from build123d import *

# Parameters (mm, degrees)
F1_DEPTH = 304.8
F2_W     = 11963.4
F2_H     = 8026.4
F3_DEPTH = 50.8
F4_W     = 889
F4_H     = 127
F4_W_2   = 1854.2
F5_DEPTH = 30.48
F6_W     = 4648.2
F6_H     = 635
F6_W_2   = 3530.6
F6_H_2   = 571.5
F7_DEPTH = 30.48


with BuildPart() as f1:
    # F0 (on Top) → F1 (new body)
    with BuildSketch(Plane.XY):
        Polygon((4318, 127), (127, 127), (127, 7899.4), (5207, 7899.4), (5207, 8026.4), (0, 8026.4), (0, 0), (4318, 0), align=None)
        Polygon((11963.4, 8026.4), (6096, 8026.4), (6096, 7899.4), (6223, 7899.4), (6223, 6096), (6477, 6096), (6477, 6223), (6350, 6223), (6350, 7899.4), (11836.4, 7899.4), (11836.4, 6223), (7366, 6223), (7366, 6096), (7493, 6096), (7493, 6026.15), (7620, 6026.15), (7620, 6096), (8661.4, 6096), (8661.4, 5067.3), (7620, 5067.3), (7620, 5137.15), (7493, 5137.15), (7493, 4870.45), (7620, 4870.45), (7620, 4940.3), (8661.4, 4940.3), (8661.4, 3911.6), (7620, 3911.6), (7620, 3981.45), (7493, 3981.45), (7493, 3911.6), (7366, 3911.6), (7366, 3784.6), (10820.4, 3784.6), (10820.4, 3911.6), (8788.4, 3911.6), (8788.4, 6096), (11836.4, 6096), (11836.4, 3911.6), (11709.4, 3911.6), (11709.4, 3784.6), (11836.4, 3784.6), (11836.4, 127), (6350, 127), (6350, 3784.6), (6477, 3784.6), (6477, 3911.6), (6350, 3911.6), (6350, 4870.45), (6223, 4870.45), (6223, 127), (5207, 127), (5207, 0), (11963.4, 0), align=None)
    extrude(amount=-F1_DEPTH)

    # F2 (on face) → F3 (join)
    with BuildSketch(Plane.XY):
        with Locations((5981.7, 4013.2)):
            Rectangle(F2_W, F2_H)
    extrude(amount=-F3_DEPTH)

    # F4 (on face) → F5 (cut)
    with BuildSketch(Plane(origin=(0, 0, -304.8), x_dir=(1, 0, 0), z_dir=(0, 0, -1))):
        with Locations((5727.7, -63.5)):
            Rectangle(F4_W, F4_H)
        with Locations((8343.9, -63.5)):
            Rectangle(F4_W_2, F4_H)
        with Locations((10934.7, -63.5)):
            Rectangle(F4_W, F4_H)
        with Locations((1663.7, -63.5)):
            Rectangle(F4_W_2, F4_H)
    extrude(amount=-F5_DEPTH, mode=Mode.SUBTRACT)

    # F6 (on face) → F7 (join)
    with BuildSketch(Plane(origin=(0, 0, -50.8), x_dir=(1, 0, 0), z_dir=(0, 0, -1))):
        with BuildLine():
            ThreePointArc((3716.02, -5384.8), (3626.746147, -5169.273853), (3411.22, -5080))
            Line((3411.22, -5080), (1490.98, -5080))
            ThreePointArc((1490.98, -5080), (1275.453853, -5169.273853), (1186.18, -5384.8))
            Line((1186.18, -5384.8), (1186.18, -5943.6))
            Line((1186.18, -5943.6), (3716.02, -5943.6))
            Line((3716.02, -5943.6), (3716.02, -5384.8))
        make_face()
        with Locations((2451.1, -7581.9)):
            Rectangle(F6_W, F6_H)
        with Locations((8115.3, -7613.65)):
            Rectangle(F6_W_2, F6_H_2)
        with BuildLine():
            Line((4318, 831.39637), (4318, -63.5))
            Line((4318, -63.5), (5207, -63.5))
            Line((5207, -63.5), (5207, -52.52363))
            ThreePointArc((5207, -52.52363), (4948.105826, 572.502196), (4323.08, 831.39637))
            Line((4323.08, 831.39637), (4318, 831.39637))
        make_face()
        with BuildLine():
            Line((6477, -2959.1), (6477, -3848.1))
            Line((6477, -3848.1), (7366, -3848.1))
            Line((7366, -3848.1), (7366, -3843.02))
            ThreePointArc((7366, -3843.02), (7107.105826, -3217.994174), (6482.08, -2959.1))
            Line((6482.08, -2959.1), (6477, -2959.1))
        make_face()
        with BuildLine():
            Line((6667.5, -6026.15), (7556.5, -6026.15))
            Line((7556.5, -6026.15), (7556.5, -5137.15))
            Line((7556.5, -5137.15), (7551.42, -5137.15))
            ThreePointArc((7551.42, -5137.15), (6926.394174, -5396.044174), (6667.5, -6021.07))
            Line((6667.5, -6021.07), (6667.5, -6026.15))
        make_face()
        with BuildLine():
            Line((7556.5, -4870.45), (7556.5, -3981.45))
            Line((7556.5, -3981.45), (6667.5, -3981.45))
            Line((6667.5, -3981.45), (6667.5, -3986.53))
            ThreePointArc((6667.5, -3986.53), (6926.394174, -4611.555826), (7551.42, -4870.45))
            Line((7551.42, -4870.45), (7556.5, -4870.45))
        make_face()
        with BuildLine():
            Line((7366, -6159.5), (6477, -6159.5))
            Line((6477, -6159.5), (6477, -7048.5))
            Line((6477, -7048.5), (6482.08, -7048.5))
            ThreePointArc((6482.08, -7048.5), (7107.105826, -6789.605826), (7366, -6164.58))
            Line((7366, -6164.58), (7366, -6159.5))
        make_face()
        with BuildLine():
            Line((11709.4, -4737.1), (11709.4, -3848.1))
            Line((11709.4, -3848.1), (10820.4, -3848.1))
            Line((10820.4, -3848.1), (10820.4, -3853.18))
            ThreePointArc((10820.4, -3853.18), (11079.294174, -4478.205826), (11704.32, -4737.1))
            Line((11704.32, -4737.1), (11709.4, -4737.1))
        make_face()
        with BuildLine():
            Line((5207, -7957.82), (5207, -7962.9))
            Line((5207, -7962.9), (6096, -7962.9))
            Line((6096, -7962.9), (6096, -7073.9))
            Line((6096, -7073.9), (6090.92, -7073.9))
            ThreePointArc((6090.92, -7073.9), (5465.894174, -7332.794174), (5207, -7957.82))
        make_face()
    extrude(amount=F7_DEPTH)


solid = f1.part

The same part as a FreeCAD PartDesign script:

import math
import FreeCAD as App
import Part
import Sketcher
from FreeCAD import Vector
Q = App.Units.Quantity

doc = App.newDocument("Part")
params = doc.addObject("Spreadsheet::Sheet", "Params")
for row, (alias, value) in enumerate([
    ("sketch1_width", "165 in"),
    ("sketch1_width2", "200 in"),
    ("sketch1_width3", "205 in"),
    ("sketch1_width4", "231 in"),
    ("sketch1_width5", "5 in"),
    ("pad1_length", "12 in"),
    ("sketch2_width", "471 in"),
    ("sketch2_height", "316 in"),
    ("pad2_length", "2 in"),
    ("sketch3_width", "35 in"),
    ("sketch3_width2", "73 in"),
    ("sketch3_height", "5 in"),
    ("pocket1_length", "1.2 in"),
    ("sketch4_radius", "12 in"),
    ("sketch4_radius2", "34.8 in"),
    ("sketch4_width", "183 in"),
    ("sketch4_width2", "139 in"),
    ("sketch4_width3", "35 in"),
    ("pad3_length", "1.2 in"),
], start=1):
    params.set(f"A{row}", alias)
    params.set(f"B{row}", "=" + value)
    params.setAlias(f"B{row}", alias)

body = doc.addObject("PartDesign::Body", "Body")
body.AllowCompound = True

sketch1 = doc.addObject("Sketcher::SketchObject", "Sketch")
body.addObject(sketch1)
sketch1.AttachmentSupport = (doc.XY_Plane, [""])
sketch1.MapMode = "FlatFace"
sketch1.addGeometry(Part.LineSegment(Vector(4318, 127, 0), Vector(127, 127, 0)), False)
sketch1.addGeometry(Part.LineSegment(Vector(127, 127, 0), Vector(127, 7899, 0)), False)
sketch1.addGeometry(Part.LineSegment(Vector(127, 7899, 0), Vector(5207, 7899, 0)), False)
sketch1.addGeometry(Part.LineSegment(Vector(5207, 7899, 0), Vector(5207, 8026, 0)), False)
sketch1.addGeometry(Part.LineSegment(Vector(5207, 8026, 0), Vector(0, 8026, 0)), False)
sketch1.addGeometry(Part.LineSegment(Vector(0, 8026, 0), Vector(0, 0, 0)), False)
sketch1.addGeometry(Part.LineSegment(Vector(0, 0, 0), Vector(4318, 0, 0)), False)
sketch1.addGeometry(Part.LineSegment(Vector(4318, 0, 0), Vector(4318, 127, 0)), False)
sketch1.addGeometry(Part.LineSegment(Vector(11963, 8026, 0), Vector(6096, 8026, 0)), False)
sketch1.addGeometry(Part.LineSegment(Vector(6096, 8026, 0), Vector(6096, 7899, 0)), False)
sketch1.addGeometry(Part.LineSegment(Vector(6096, 7899, 0), Vector(6223, 7899, 0)), False)
sketch1.addGeometry(Part.LineSegment(Vector(6223, 7899, 0), Vector(6223, 6096, 0)), False)
sketch1.addGeometry(Part.LineSegment(Vector(6223, 6096, 0), Vector(6477, 6096, 0)), False)
sketch1.addGeometry(Part.LineSegment(Vector(6477, 6096, 0), Vector(6477, 6223, 0)), False)
sketch1.addGeometry(Part.LineSegment(Vector(6477, 6223, 0), Vector(6350, 6223, 0)), False)
sketch1.addGeometry(Part.LineSegment(Vector(6350, 6223, 0), Vector(6350, 7899, 0)), False)
sketch1.addGeometry(Part.LineSegment(Vector(6350, 7899, 0), Vector(11836, 7899, 0)), False)
sketch1.addGeometry(Part.LineSegment(Vector(11836, 7899, 0), Vector(11836, 6223, 0)), False)
sketch1.addGeometry(Part.LineSegment(Vector(11836, 6223, 0), Vector(7366, 6223, 0)), False)
sketch1.addGeometry(Part.LineSegment(Vector(7366, 6223, 0), Vector(7366, 6096, 0)), False)
sketch1.addGeometry(Part.LineSegment(Vector(7366, 6096, 0), Vector(7493, 6096, 0)), False)
sketch1.addGeometry(Part.LineSegment(Vector(7493, 6096, 0), Vector(7493, 6026, 0)), False)
sketch1.addGeometry(Part.LineSegment(Vector(7493, 6026, 0), Vector(7620, 6026, 0)), False)
sketch1.addGeometry(Part.LineSegment(Vector(7620, 6026, 0), Vector(7620, 6096, 0)), False)
sketch1.addGeometry(Part.LineSegment(Vector(7620, 6096, 0), Vector(8661, 6096, 0)), False)
sketch1.addGeometry(Part.LineSegment(Vector(8661, 6096, 0), Vector(8661, 5067, 0)), False)
sketch1.addGeometry(Part.LineSegment(Vector(8661, 5067, 0), Vector(7620, 5067, 0)), False)
sketch1.addGeometry(Part.LineSegment(Vector(7620, 5067, 0), Vector(7620, 5137, 0)), False)
sketch1.addGeometry(Part.LineSegment(Vector(7620, 5137, 0), Vector(7493, 5137, 0)), False)
sketch1.addGeometry(Part.LineSegment(Vector(7493, 5137, 0), Vector(7493, 4870, 0)), False)
sketch1.addGeometry(Part.LineSegment(Vector(7493, 4870, 0), Vector(7620, 4870, 0)), False)
sketch1.addGeometry(Part.LineSegment(Vector(7620, 4870, 0), Vector(7620, 4940, 0)), False)
sketch1.addGeometry(Part.LineSegment(Vector(7620, 4940, 0), Vector(8661, 4940, 0)), False)
sketch1.addGeometry(Part.LineSegment(Vector(8661, 4940, 0), Vector(8661, 3912, 0)), False)
sketch1.addGeometry(Part.LineSegment(Vector(8661, 3912, 0), Vector(7620, 3912, 0)), False)
sketch1.addGeometry(Part.LineSegment(Vector(7620, 3912, 0), Vector(7620, 3981, 0)), False)
sketch1.addGeometry(Part.LineSegment(Vector(7620, 3981, 0), Vector(7493, 3981, 0)), False)
sketch1.addGeometry(Part.LineSegment(Vector(7493, 3981, 0), Vector(7493, 3912, 0)), False)
sketch1.addGeometry(Part.LineSegment(Vector(7493, 3912, 0), Vector(7366, 3912, 0)), False)
sketch1.addGeometry(Part.LineSegment(Vector(7366, 3912, 0), Vector(7366, 3785, 0)), False)
sketch1.addGeometry(Part.LineSegment(Vector(7366, 3785, 0), Vector(10820, 3785, 0)), False)
sketch1.addGeometry(Part.LineSegment(Vector(10820, 3785, 0), Vector(10820, 3912, 0)), False)
sketch1.addGeometry(Part.LineSegment(Vector(10820, 3912, 0), Vector(8788, 3912, 0)), False)
sketch1.addGeometry(Part.LineSegment(Vector(8788, 3912, 0), Vector(8788, 6096, 0)), False)
sketch1.addGeometry(Part.LineSegment(Vector(8788, 6096, 0), Vector(11836, 6096, 0)), False)
sketch1.addGeometry(Part.LineSegment(Vector(11836, 6096, 0), Vector(11836, 3912, 0)), False)
sketch1.addGeometry(Part.LineSegment(Vector(11836, 3912, 0), Vector(11709, 3912, 0)), False)
sketch1.addGeometry(Part.LineSegment(Vector(11709, 3912, 0), Vector(11709, 3785, 0)), False)
sketch1.addGeometry(Part.LineSegment(Vector(11709, 3785, 0), Vector(11836, 3785, 0)), False)
sketch1.addGeometry(Part.LineSegment(Vector(11836, 3785, 0), Vector(11836, 127, 0)), False)
sketch1.addGeometry(Part.LineSegment(Vector(11836, 127, 0), Vector(6350, 127, 0)), False)
sketch1.addGeometry(Part.LineSegment(Vector(6350, 127, 0), Vector(6350, 3785, 0)), False)
sketch1.addGeometry(Part.LineSegment(Vector(6350, 3785, 0), Vector(6477, 3785, 0)), False)
sketch1.addGeometry(Part.LineSegment(Vector(6477, 3785, 0), Vector(6477, 3912, 0)), False)
sketch1.addGeometry(Part.LineSegment(Vector(6477, 3912, 0), Vector(6350, 3912, 0)), False)
sketch1.addGeometry(Part.LineSegment(Vector(6350, 3912, 0), Vector(6350, 4870, 0)), False)
sketch1.addGeometry(Part.LineSegment(Vector(6350, 4870, 0), Vector(6223, 4870, 0)), False)
sketch1.addGeometry(Part.LineSegment(Vector(6223, 4870, 0), Vector(6223, 127, 0)), False)
sketch1.addGeometry(Part.LineSegment(Vector(6223, 127, 0), Vector(5207, 127, 0)), False)
sketch1.addGeometry(Part.LineSegment(Vector(5207, 127, 0), Vector(5207, 0, 0)), False)
sketch1.addGeometry(Part.LineSegment(Vector(5207, 0, 0), Vector(11963, 0, 0)), False)
sketch1.addGeometry(Part.LineSegment(Vector(11963, 0, 0), Vector(11963, 8026, 0)), False)
sketch1.addConstraint(Sketcher.Constraint("Coincident", 0, 2, 1, 1))
sketch1.addConstraint(Sketcher.Constraint("Coincident", 1, 2, 2, 1))
sketch1.addConstraint(Sketcher.Constraint("Coincident", 2, 2, 3, 1))
sketch1.addConstraint(Sketcher.Constraint("Coincident", 3, 2, 4, 1))
sketch1.addConstraint(Sketcher.Constraint("Coincident", 4, 2, 5, 1))
sketch1.addConstraint(Sketcher.Constraint("Coincident", 5, 2, 6, 1))
sketch1.addConstraint(Sketcher.Constraint("Coincident", 6, 2, 7, 1))
sketch1.addConstraint(Sketcher.Constraint("Coincident", 7, 2, 0, 1))
sketch1.addConstraint(Sketcher.Constraint("Coincident", 8, 2, 9, 1))
sketch1.addConstraint(Sketcher.Constraint("Coincident", 9, 2, 10, 1))
sketch1.addConstraint(Sketcher.Constraint("Coincident", 10, 2, 11, 1))
sketch1.addConstraint(Sketcher.Constraint("Coincident", 11, 2, 12, 1))
sketch1.addConstraint(Sketcher.Constraint("Coincident", 12, 2, 13, 1))
sketch1.addConstraint(Sketcher.Constraint("Coincident", 13, 2, 14, 1))
sketch1.addConstraint(Sketcher.Constraint("Coincident", 14, 2, 15, 1))
sketch1.addConstraint(Sketcher.Constraint("Coincident", 15, 2, 16, 1))
sketch1.addConstraint(Sketcher.Constraint("Coincident", 16, 2, 17, 1))
sketch1.addConstraint(Sketcher.Constraint("Coincident", 17, 2, 18, 1))
sketch1.addConstraint(Sketcher.Constraint("Coincident", 18, 2, 19, 1))
sketch1.addConstraint(Sketcher.Constraint("Coincident", 19, 2, 20, 1))
sketch1.addConstraint(Sketcher.Constraint("Coincident", 20, 2, 21, 1))
sketch1.addConstraint(Sketcher.Constraint("Coincident", 21, 2, 22, 1))
sketch1.addConstraint(Sketcher.Constraint("Coincident", 22, 2, 23, 1))
sketch1.addConstraint(Sketcher.Constraint("Coincident", 23, 2, 24, 1))
sketch1.addConstraint(Sketcher.Constraint("Coincident", 24, 2, 25, 1))
sketch1.addConstraint(Sketcher.Constraint("Coincident", 25, 2, 26, 1))
sketch1.addConstraint(Sketcher.Constraint("Coincident", 26, 2, 27, 1))
sketch1.addConstraint(Sketcher.Constraint("Coincident", 27, 2, 28, 1))
sketch1.addConstraint(Sketcher.Constraint("Coincident", 28, 2, 29, 1))
sketch1.addConstraint(Sketcher.Constraint("Coincident", 29, 2, 30, 1))
sketch1.addConstraint(Sketcher.Constraint("Coincident", 30, 2, 31, 1))
sketch1.addConstraint(Sketcher.Constraint("Coincident", 31, 2, 32, 1))
sketch1.addConstraint(Sketcher.Constraint("Coincident", 32, 2, 33, 1))
sketch1.addConstraint(Sketcher.Constraint("Coincident", 33, 2, 34, 1))
sketch1.addConstraint(Sketcher.Constraint("Coincident", 34, 2, 35, 1))
sketch1.addConstraint(Sketcher.Constraint("Coincident", 35, 2, 36, 1))
sketch1.addConstraint(Sketcher.Constraint("Coincident", 36, 2, 37, 1))
sketch1.addConstraint(Sketcher.Constraint("Coincident", 37, 2, 38, 1))
sketch1.addConstraint(Sketcher.Constraint("Coincident", 38, 2, 39, 1))
sketch1.addConstraint(Sketcher.Constraint("Coincident", 39, 2, 40, 1))
sketch1.addConstraint(Sketcher.Constraint("Coincident", 40, 2, 41, 1))
sketch1.addConstraint(Sketcher.Constraint("Coincident", 41, 2, 42, 1))
sketch1.addConstraint(Sketcher.Constraint("Coincident", 42, 2, 43, 1))
sketch1.addConstraint(Sketcher.Constraint("Coincident", 43, 2, 44, 1))
sketch1.addConstraint(Sketcher.Constraint("Coincident", 44, 2, 45, 1))
sketch1.addConstraint(Sketcher.Constraint("Coincident", 45, 2, 46, 1))
sketch1.addConstraint(Sketcher.Constraint("Coincident", 46, 2, 47, 1))
sketch1.addConstraint(Sketcher.Constraint("Coincident", 47, 2, 48, 1))
sketch1.addConstraint(Sketcher.Constraint("Coincident", 48, 2, 49, 1))
sketch1.addConstraint(Sketcher.Constraint("Coincident", 49, 2, 50, 1))
sketch1.addConstraint(Sketcher.Constraint("Coincident", 50, 2, 51, 1))
sketch1.addConstraint(Sketcher.Constraint("Coincident", 51, 2, 52, 1))
sketch1.addConstraint(Sketcher.Constraint("Coincident", 52, 2, 53, 1))
sketch1.addConstraint(Sketcher.Constraint("Coincident", 53, 2, 54, 1))
sketch1.addConstraint(Sketcher.Constraint("Coincident", 54, 2, 55, 1))
sketch1.addConstraint(Sketcher.Constraint("Coincident", 55, 2, 56, 1))
sketch1.addConstraint(Sketcher.Constraint("Coincident", 56, 2, 57, 1))
sketch1.addConstraint(Sketcher.Constraint("Coincident", 57, 2, 58, 1))
sketch1.addConstraint(Sketcher.Constraint("Coincident", 58, 2, 59, 1))
sketch1.addConstraint(Sketcher.Constraint("Coincident", 59, 2, 60, 1))
sketch1.addConstraint(Sketcher.Constraint("Coincident", 60, 2, 61, 1))
sketch1.addConstraint(Sketcher.Constraint("Coincident", 61, 2, 8, 1))
sketch1.addConstraint(Sketcher.Constraint("Horizontal", 0))
sketch1.addConstraint(Sketcher.Constraint("Vertical", 1))
sketch1.addConstraint(Sketcher.Constraint("Horizontal", 2))
sketch1.addConstraint(Sketcher.Constraint("Vertical", 3))
sketch1.addConstraint(Sketcher.Constraint("Horizontal", 4))
sketch1.addConstraint(Sketcher.Constraint("Vertical", 5))
sketch1.addConstraint(Sketcher.Constraint("Horizontal", 6))
sketch1.addConstraint(Sketcher.Constraint("Vertical", 7))
sketch1.addConstraint(Sketcher.Constraint("Horizontal", 8))
sketch1.addConstraint(Sketcher.Constraint("Vertical", 9))
sketch1.addConstraint(Sketcher.Constraint("Horizontal", 10))
sketch1.addConstraint(Sketcher.Constraint("Vertical", 11))
sketch1.addConstraint(Sketcher.Constraint("Horizontal", 12))
sketch1.addConstraint(Sketcher.Constraint("Vertical", 13))
sketch1.addConstraint(Sketcher.Constraint("Horizontal", 14))
sketch1.addConstraint(Sketcher.Constraint("Vertical", 15))
sketch1.addConstraint(Sketcher.Constraint("Horizontal", 16))
sketch1.addConstraint(Sketcher.Constraint("Vertical", 17))
sketch1.addConstraint(Sketcher.Constraint("Horizontal", 18))
sketch1.addConstraint(Sketcher.Constraint("Vertical", 19))
sketch1.addConstraint(Sketcher.Constraint("Horizontal", 20))
sketch1.addConstraint(Sketcher.Constraint("Vertical", 21))
sketch1.addConstraint(Sketcher.Constraint("Horizontal", 22))
sketch1.addConstraint(Sketcher.Constraint("Vertical", 23))
sketch1.addConstraint(Sketcher.Constraint("Horizontal", 24))
sketch1.addConstraint(Sketcher.Constraint("Vertical", 25))
sketch1.addConstraint(Sketcher.Constraint("Horizontal", 26))
sketch1.addConstraint(Sketcher.Constraint("Vertical", 27))
sketch1.addConstraint(Sketcher.Constraint("Horizontal", 28))
sketch1.addConstraint(Sketcher.Constraint("Vertical", 29))
sketch1.addConstraint(Sketcher.Constraint("Horizontal", 30))
sketch1.addConstraint(Sketcher.Constraint("Vertical", 31))
sketch1.addConstraint(Sketcher.Constraint("Horizontal", 32))
sketch1.addConstraint(Sketcher.Constraint("Vertical", 33))
sketch1.addConstraint(Sketcher.Constraint("Horizontal", 34))
sketch1.addConstraint(Sketcher.Constraint("Vertical", 35))
sketch1.addConstraint(Sketcher.Constraint("Horizontal", 36))
sketch1.addConstraint(Sketcher.Constraint("Vertical", 37))
sketch1.addConstraint(Sketcher.Constraint("Horizontal", 38))
sketch1.addConstraint(Sketcher.Constraint("Vertical", 39))
sketch1.addConstraint(Sketcher.Constraint("Horizontal", 40))
sketch1.addConstraint(Sketcher.Constraint("Vertical", 41))
sketch1.addConstraint(Sketcher.Constraint("Horizontal", 42))
sketch1.addConstraint(Sketcher.Constraint("Vertical", 43))
sketch1.addConstraint(Sketcher.Constraint("Horizontal", 44))
sketch1.addConstraint(Sketcher.Constraint("Vertical", 45))
sketch1.addConstraint(Sketcher.Constraint("Horizontal", 46))
sketch1.addConstraint(Sketcher.Constraint("Vertical", 47))
sketch1.addConstraint(Sketcher.Constraint("Horizontal", 48))
sketch1.addConstraint(Sketcher.Constraint("Vertical", 49))
sketch1.addConstraint(Sketcher.Constraint("Horizontal", 50))
sketch1.addConstraint(Sketcher.Constraint("Vertical", 51))
sketch1.addConstraint(Sketcher.Constraint("Horizontal", 52))
sketch1.addConstraint(Sketcher.Constraint("Vertical", 53))
sketch1.addConstraint(Sketcher.Constraint("Horizontal", 54))
sketch1.addConstraint(Sketcher.Constraint("Vertical", 55))
sketch1.addConstraint(Sketcher.Constraint("Horizontal", 56))
sketch1.addConstraint(Sketcher.Constraint("Vertical", 57))
sketch1.addConstraint(Sketcher.Constraint("Horizontal", 58))
sketch1.addConstraint(Sketcher.Constraint("Vertical", 59))
sketch1.addConstraint(Sketcher.Constraint("Horizontal", 60))
sketch1.addConstraint(Sketcher.Constraint("Vertical", 61))
sketch1.addConstraint(Sketcher.Constraint("Coincident", 5, 2, -1, 1))
sketch1.addConstraint(Sketcher.Constraint("PointOnObject", 59, 2, -1))
sketch1.addConstraint(Sketcher.Constraint("Horizontal", 4, 2, 8, 2))
sketch1.addConstraint(Sketcher.Constraint("Horizontal", 2, 2, 9, 2))
sketch1.addConstraint(Sketcher.Constraint("Horizontal", 10, 2, 15, 2))
sketch1.addConstraint(Sketcher.Constraint("Horizontal", 14, 2, 17, 2))
sketch1.addConstraint(Sketcher.Constraint("Horizontal", 12, 2, 19, 2))
sketch1.addConstraint(Sketcher.Constraint("Horizontal", 20, 2, 23, 2))
sketch1.addConstraint(Sketcher.Constraint("Horizontal", 34, 2, 37, 2))
sketch1.addConstraint(Sketcher.Constraint("Horizontal", 38, 2, 41, 2))
sketch1.addConstraint(Sketcher.Constraint("Horizontal", 24, 2, 43, 2))
sketch1.addConstraint(Sketcher.Constraint("Horizontal", 42, 2, 45, 2))
sketch1.addConstraint(Sketcher.Constraint("Horizontal", 40, 2, 47, 2))
sketch1.addConstraint(Sketcher.Constraint("Horizontal", 7, 2, 49, 2))
sketch1.addConstraint(Sketcher.Constraint("Horizontal", 48, 2, 51, 2))
sketch1.addConstraint(Sketcher.Constraint("Horizontal", 46, 2, 53, 2))
sketch1.addConstraint(Sketcher.Constraint("Horizontal", 30, 2, 55, 2))
sketch1.addConstraint(Sketcher.Constraint("Horizontal", 50, 2, 57, 2))
sketch1.addConstraint(Sketcher.Constraint("Vertical", 23, 2, 26, 2))
sketch1.addConstraint(Sketcher.Constraint("Vertical", 21, 2, 28, 2))
sketch1.addConstraint(Sketcher.Constraint("Vertical", 27, 2, 30, 2))
sketch1.addConstraint(Sketcher.Constraint("Vertical", 25, 2, 32, 2))
sketch1.addConstraint(Sketcher.Constraint("Vertical", 31, 2, 34, 2))
sketch1.addConstraint(Sketcher.Constraint("Vertical", 29, 2, 36, 2))
sketch1.addConstraint(Sketcher.Constraint("Vertical", 19, 2, 38, 2))
sketch1.addConstraint(Sketcher.Constraint("Vertical", 17, 2, 44, 2))
sketch1.addConstraint(Sketcher.Constraint("Vertical", 45, 2, 48, 2))
sketch1.addConstraint(Sketcher.Constraint("Vertical", 15, 2, 50, 2))
sketch1.addConstraint(Sketcher.Constraint("Vertical", 13, 2, 52, 2))
sketch1.addConstraint(Sketcher.Constraint("Vertical", 51, 2, 54, 2))
sketch1.addConstraint(Sketcher.Constraint("Vertical", 11, 2, 56, 2))
sketch1.addConstraint(Sketcher.Constraint("Vertical", 3, 2, 58, 2))
sketch1.addConstraint(Sketcher.Constraint("Equal", 10, 14))
sketch1.addConstraint(Sketcher.Constraint("Equal", 14, 20))
sketch1.addConstraint(Sketcher.Constraint("Equal", 20, 22))
sketch1.addConstraint(Sketcher.Constraint("Equal", 38, 46))
sketch1.addConstraint(Sketcher.Constraint("Equal", 54, 56))
sketch1.addConstraint(Sketcher.Constraint("Equal", 56, 3))
sketch1.addConstraint(Sketcher.Constraint("Equal", 3, 7))
sketch1.addConstraint(Sketcher.Constraint("Equal", 9, 13))
sketch1.addConstraint(Sketcher.Constraint("Equal", 23, 27))
sketch1.addConstraint(Sketcher.Constraint("Equal", 27, 31))
sketch1.addConstraint(Sketcher.Constraint("Equal", 25, 33))
sketch1.addConstraint(Sketcher.Constraint("Equal", 31, 35))
sketch1.addConstraint(Sketcher.Constraint("Equal", 19, 39))
sketch1.addConstraint(Sketcher.Constraint("DistanceX", 0, 2, 0, 1, Q("165 in")))
sketch1.addConstraint(Sketcher.Constraint("DistanceX", 2, 1, 2, 2, Q("200 in")))
sketch1.addConstraint(Sketcher.Constraint("DistanceX", 4, 2, 4, 1, Q("205 in")))
sketch1.addConstraint(Sketcher.Constraint("DistanceX", 8, 2, 8, 1, Q("231 in")))
sketch1.addConstraint(Sketcher.Constraint("DistanceX", 10, 1, 10, 2, Q("5 in")))
sketch1.addConstraint(Sketcher.Constraint("DistanceX", 16, 1, 16, 2, Q("216 in")))
sketch1.addConstraint(Sketcher.Constraint("DistanceX", 18, 2, 18, 1, Q("176 in")))
sketch1.addConstraint(Sketcher.Constraint("DistanceX", 24, 1, 24, 2, Q("41 in")))
sketch1.addConstraint(Sketcher.Constraint("DistanceX", 40, 1, 40, 2, Q("136 in")))
sketch1.addConstraint(Sketcher.Constraint("DistanceX", 42, 2, 42, 1, Q("80 in")))
sketch1.addConstraint(Sketcher.Constraint("DistanceX", 58, 2, 58, 1, Q("40 in")))
sketch1.addConstraint(Sketcher.Constraint("DistanceY", 1, 1, 1, 2, Q("306 in")))
sketch1.addConstraint(Sketcher.Constraint("DistanceY", 11, 2, 11, 1, Q("71 in")))
sketch1.addConstraint(Sketcher.Constraint("DistanceY", 43, 1, 43, 2, Q("86 in")))
sketch1.addConstraint(Sketcher.Constraint("DistanceY", 25, 2, 25, 1, Q("40.5 in")))
sketch1.addConstraint(Sketcher.Constraint("DistanceY", 29, 2, 29, 1, Q("10.5 in")))
sketch1.setExpression("Constraints[169]", "Params.sketch1_width")
sketch1.setExpression("Constraints[170]", "Params.sketch1_width2")
sketch1.setExpression("Constraints[171]", "Params.sketch1_width3")
sketch1.setExpression("Constraints[172]", "Params.sketch1_width4")
sketch1.setExpression("Constraints[173]", "Params.sketch1_width5")
pad1 = doc.addObject("PartDesign::Pad", "Pad")
body.addObject(pad1)
pad1.Profile = sketch1
pad1.setExpression("Length", "Params.pad1_length")
pad1.Reversed = True

sketch2 = doc.addObject("Sketcher::SketchObject", "Sketch001")
body.addObject(sketch2)
sketch2.AttachmentSupport = (doc.XY_Plane, [""])
sketch2.MapMode = "FlatFace"
sketch2.addGeometry(Part.LineSegment(Vector(0, 8026, 0), Vector(0, 0, 0)), False)
sketch2.addGeometry(Part.LineSegment(Vector(0, 0, 0), Vector(11963, 0, 0)), False)
sketch2.addGeometry(Part.LineSegment(Vector(11963, 0, 0), Vector(11963, 8026, 0)), False)
sketch2.addGeometry(Part.LineSegment(Vector(11963, 8026, 0), Vector(0, 8026, 0)), False)
sketch2.addConstraint(Sketcher.Constraint("Coincident", 0, 2, 1, 1))
sketch2.addConstraint(Sketcher.Constraint("Coincident", 1, 2, 2, 1))
sketch2.addConstraint(Sketcher.Constraint("Coincident", 2, 2, 3, 1))
sketch2.addConstraint(Sketcher.Constraint("Coincident", 3, 2, 0, 1))
sketch2.addConstraint(Sketcher.Constraint("Vertical", 0))
sketch2.addConstraint(Sketcher.Constraint("Horizontal", 1))
sketch2.addConstraint(Sketcher.Constraint("Vertical", 2))
sketch2.addConstraint(Sketcher.Constraint("Horizontal", 3))
sketch2.addConstraint(Sketcher.Constraint("Coincident", 0, 2, -1, 1))
sketch2.addConstraint(Sketcher.Constraint("DistanceX", 1, 1, 1, 2, Q("471 in")))
sketch2.addConstraint(Sketcher.Constraint("DistanceY", 0, 2, 0, 1, Q("316 in")))
sketch2.setExpression("Constraints[9]", "Params.sketch2_width")
sketch2.setExpression("Constraints[10]", "Params.sketch2_height")
pad2 = doc.addObject("PartDesign::Pad", "Pad001")
body.addObject(pad2)
pad2.Profile = sketch2
pad2.setExpression("Length", "Params.pad2_length")
pad2.Reversed = True

sketch3 = doc.addObject("Sketcher::SketchObject", "Sketch002")
body.addObject(sketch3)
sketch3.AttachmentSupport = (doc.XY_Plane, [""])
sketch3.MapMode = "FlatFace"
sketch3.AttachmentOffset = App.Placement(Vector(0, 0, -12 * 25.4), App.Rotation())
sketch3.addGeometry(Part.LineSegment(Vector(5283, 0, 0), Vector(5283, 127, 0)), False)
sketch3.addGeometry(Part.LineSegment(Vector(5283, 127, 0), Vector(6172, 127, 0)), False)
sketch3.addGeometry(Part.LineSegment(Vector(6172, 127, 0), Vector(6172, 0, 0)), False)
sketch3.addGeometry(Part.LineSegment(Vector(6172, 0, 0), Vector(5283, 0, 0)), False)
sketch3.addGeometry(Part.LineSegment(Vector(7417, 0, 0), Vector(7417, 127, 0)), False)
sketch3.addGeometry(Part.LineSegment(Vector(7417, 127, 0), Vector(9271, 127, 0)), False)
sketch3.addGeometry(Part.LineSegment(Vector(9271, 127, 0), Vector(9271, 0, 0)), False)
sketch3.addGeometry(Part.LineSegment(Vector(9271, 0, 0), Vector(7417, 0, 0)), False)
sketch3.addGeometry(Part.LineSegment(Vector(10490, 0, 0), Vector(10490, 127, 0)), False)
sketch3.addGeometry(Part.LineSegment(Vector(10490, 127, 0), Vector(11379, 127, 0)), False)
sketch3.addGeometry(Part.LineSegment(Vector(11379, 127, 0), Vector(11379, 0, 0)), False)
sketch3.addGeometry(Part.LineSegment(Vector(11379, 0, 0), Vector(10490, 0, 0)), False)
sketch3.addGeometry(Part.LineSegment(Vector(737, 0, 0), Vector(737, 127, 0)), False)
sketch3.addGeometry(Part.LineSegment(Vector(737, 127, 0), Vector(2591, 127, 0)), False)
sketch3.addGeometry(Part.LineSegment(Vector(2591, 127, 0), Vector(2591, 0, 0)), False)
sketch3.addGeometry(Part.LineSegment(Vector(2591, 0, 0), Vector(737, 0, 0)), False)
sketch3.addConstraint(Sketcher.Constraint("Coincident", 0, 2, 1, 1))
sketch3.addConstraint(Sketcher.Constraint("Coincident", 1, 2, 2, 1))
sketch3.addConstraint(Sketcher.Constraint("Coincident", 2, 2, 3, 1))
sketch3.addConstraint(Sketcher.Constraint("Coincident", 3, 2, 0, 1))
sketch3.addConstraint(Sketcher.Constraint("Coincident", 4, 2, 5, 1))
sketch3.addConstraint(Sketcher.Constraint("Coincident", 5, 2, 6, 1))
sketch3.addConstraint(Sketcher.Constraint("Coincident", 6, 2, 7, 1))
sketch3.addConstraint(Sketcher.Constraint("Coincident", 7, 2, 4, 1))
sketch3.addConstraint(Sketcher.Constraint("Coincident", 8, 2, 9, 1))
sketch3.addConstraint(Sketcher.Constraint("Coincident", 9, 2, 10, 1))
sketch3.addConstraint(Sketcher.Constraint("Coincident", 10, 2, 11, 1))
sketch3.addConstraint(Sketcher.Constraint("Coincident", 11, 2, 8, 1))
sketch3.addConstraint(Sketcher.Constraint("Coincident", 12, 2, 13, 1))
sketch3.addConstraint(Sketcher.Constraint("Coincident", 13, 2, 14, 1))
sketch3.addConstraint(Sketcher.Constraint("Coincident", 14, 2, 15, 1))
sketch3.addConstraint(Sketcher.Constraint("Coincident", 15, 2, 12, 1))
sketch3.addConstraint(Sketcher.Constraint("Vertical", 0))
sketch3.addConstraint(Sketcher.Constraint("Horizontal", 1))
sketch3.addConstraint(Sketcher.Constraint("Vertical", 2))
sketch3.addConstraint(Sketcher.Constraint("Horizontal", 3))
sketch3.addConstraint(Sketcher.Constraint("Vertical", 4))
sketch3.addConstraint(Sketcher.Constraint("Horizontal", 5))
sketch3.addConstraint(Sketcher.Constraint("Vertical", 6))
sketch3.addConstraint(Sketcher.Constraint("Horizontal", 7))
sketch3.addConstraint(Sketcher.Constraint("Vertical", 8))
sketch3.addConstraint(Sketcher.Constraint("Horizontal", 9))
sketch3.addConstraint(Sketcher.Constraint("Vertical", 10))
sketch3.addConstraint(Sketcher.Constraint("Horizontal", 11))
sketch3.addConstraint(Sketcher.Constraint("Vertical", 12))
sketch3.addConstraint(Sketcher.Constraint("Horizontal", 13))
sketch3.addConstraint(Sketcher.Constraint("Vertical", 14))
sketch3.addConstraint(Sketcher.Constraint("Horizontal", 15))
sketch3.addConstraint(Sketcher.Constraint("PointOnObject", 2, 2, -1))
sketch3.addConstraint(Sketcher.Constraint("PointOnObject", 6, 2, -1))
sketch3.addConstraint(Sketcher.Constraint("PointOnObject", 10, 2, -1))
sketch3.addConstraint(Sketcher.Constraint("PointOnObject", 14, 2, -1))
sketch3.addConstraint(Sketcher.Constraint("Horizontal", 1, 2, 4, 2))
sketch3.addConstraint(Sketcher.Constraint("Horizontal", 5, 2, 8, 2))
sketch3.addConstraint(Sketcher.Constraint("Horizontal", 9, 2, 12, 2))
sketch3.addConstraint(Sketcher.Constraint("Equal", 3, 9))
sketch3.addConstraint(Sketcher.Constraint("Equal", 7, 13))
sketch3.addConstraint(Sketcher.Constraint("DistanceX", 1, 1, 1, 2, Q("35 in")))
sketch3.addConstraint(Sketcher.Constraint("DistanceX", 5, 1, 5, 2, Q("73 in")))
sketch3.addConstraint(Sketcher.Constraint("DistanceY", 0, 1, 0, 2, Q("5 in")))
sketch3.addConstraint(Sketcher.Constraint("DistanceX", -1, 1, 0, 2, Q("208 in")))
sketch3.addConstraint(Sketcher.Constraint("DistanceX", -1, 1, 4, 2, Q("292 in")))
sketch3.addConstraint(Sketcher.Constraint("DistanceX", -1, 1, 8, 2, Q("413 in")))
sketch3.addConstraint(Sketcher.Constraint("DistanceX", -1, 1, 12, 2, Q("29 in")))
sketch3.setExpression("Constraints[41]", "Params.sketch3_width")
sketch3.setExpression("Constraints[42]", "Params.sketch3_width2")
sketch3.setExpression("Constraints[43]", "Params.sketch3_height")
pocket1 = doc.addObject("PartDesign::Pocket", "Pocket")
body.addObject(pocket1)
pocket1.Profile = sketch3
pocket1.setExpression("Length", "Params.pocket1_length")
pocket1.Reversed = True

sketch4 = doc.addObject("Sketcher::SketchObject", "Sketch003")
body.addObject(sketch4)
sketch4.AttachmentSupport = (doc.XY_Plane, [""])
sketch4.MapMode = "FlatFace"
sketch4.AttachmentOffset = App.Placement(Vector(0, 0, -2 * 25.4), App.Rotation())
sketch4.addGeometry(Part.ArcOfCircle(Part.Circle(Vector(3411, 5385, 0), Vector(0, 0, 1), 305), math.radians(-90), math.radians(0)), False)
sketch4.addGeometry(Part.LineSegment(Vector(3411, 5080, 0), Vector(1491, 5080, 0)), False)
sketch4.addGeometry(Part.ArcOfCircle(Part.Circle(Vector(1491, 5385, 0), Vector(0, 0, 1), 305), math.radians(180), math.radians(270)), False)
sketch4.addGeometry(Part.LineSegment(Vector(1186, 5385, 0), Vector(1186, 5944, 0)), False)
sketch4.addGeometry(Part.LineSegment(Vector(1186, 5944, 0), Vector(3716, 5944, 0)), False)
sketch4.addGeometry(Part.LineSegment(Vector(3716, 5944, 0), Vector(3716, 5385, 0)), False)
sketch4.addGeometry(Part.LineSegment(Vector(127, 7264, 0), Vector(127, 7899, 0)), False)
sketch4.addGeometry(Part.LineSegment(Vector(127, 7899, 0), Vector(4775, 7899, 0)), False)
sketch4.addGeometry(Part.LineSegment(Vector(4775, 7899, 0), Vector(4775, 7264, 0)), False)
sketch4.addGeometry(Part.LineSegment(Vector(4775, 7264, 0), Vector(127, 7264, 0)), False)
sketch4.addGeometry(Part.LineSegment(Vector(6350, 7328, 0), Vector(6350, 7899, 0)), False)
sketch4.addGeometry(Part.LineSegment(Vector(6350, 7899, 0), Vector(9881, 7899, 0)), False)
sketch4.addGeometry(Part.LineSegment(Vector(9881, 7899, 0), Vector(9881, 7328, 0)), False)
sketch4.addGeometry(Part.LineSegment(Vector(9881, 7328, 0), Vector(6350, 7328, 0)), False)
sketch4.addGeometry(Part.LineSegment(Vector(4318, -831, 0), Vector(4318, 64, 0)), False)
sketch4.addGeometry(Part.LineSegment(Vector(4318, 64, 0), Vector(5207, 64, 0)), False)
sketch4.addGeometry(Part.LineSegment(Vector(5207, 64, 0), Vector(5207, 53, 0)), False)
sketch4.addGeometry(Part.ArcOfCircle(Part.Circle(Vector(4323, 53, 0), Vector(0, 0, 1), 884), math.radians(-90), math.radians(0)), False)
sketch4.addGeometry(Part.LineSegment(Vector(4323, -831, 0), Vector(4318, -831, 0)), False)
sketch4.addGeometry(Part.LineSegment(Vector(6477, 2959, 0), Vector(6477, 3848, 0)), False)
sketch4.addGeometry(Part.LineSegment(Vector(6477, 3848, 0), Vector(7366, 3848, 0)), False)
sketch4.addGeometry(Part.LineSegment(Vector(7366, 3848, 0), Vector(7366, 3843, 0)), False)
sketch4.addGeometry(Part.ArcOfCircle(Part.Circle(Vector(6482, 3843, 0), Vector(0, 0, 1), 884), math.radians(-90), math.radians(0)), False)
sketch4.addGeometry(Part.LineSegment(Vector(6482, 2959, 0), Vector(6477, 2959, 0)), False)
sketch4.addGeometry(Part.LineSegment(Vector(6668, 6026, 0), Vector(7556, 6026, 0)), False)
sketch4.addGeometry(Part.LineSegment(Vector(7556, 6026, 0), Vector(7556, 5137, 0)), False)
sketch4.addGeometry(Part.LineSegment(Vector(7556, 5137, 0), Vector(7551, 5137, 0)), False)
sketch4.addGeometry(Part.ArcOfCircle(Part.Circle(Vector(7551, 6021, 0), Vector(0, 0, 1), 884), math.radians(-180), math.radians(-90)), False)
sketch4.addGeometry(Part.LineSegment(Vector(6668, 6021, 0), Vector(6668, 6026, 0)), False)
sketch4.addGeometry(Part.LineSegment(Vector(7556, 4870, 0), Vector(7556, 3981, 0)), False)
sketch4.addGeometry(Part.LineSegment(Vector(7556, 3981, 0), Vector(6668, 3981, 0)), False)
sketch4.addGeometry(Part.LineSegment(Vector(6668, 3981, 0), Vector(6668, 3987, 0)), False)
sketch4.addGeometry(Part.ArcOfCircle(Part.Circle(Vector(7551, 3987, 0), Vector(0, 0, 1), 884), math.radians(90), math.radians(180)), False)
sketch4.addGeometry(Part.LineSegment(Vector(7551, 4870, 0), Vector(7556, 4870, 0)), False)
sketch4.addGeometry(Part.LineSegment(Vector(7366, 6160, 0), Vector(6477, 6160, 0)), False)
sketch4.addGeometry(Part.LineSegment(Vector(6477, 6160, 0), Vector(6477, 7048, 0)), False)
sketch4.addGeometry(Part.LineSegment(Vector(6477, 7048, 0), Vector(6482, 7048, 0)), False)
sketch4.addGeometry(Part.ArcOfCircle(Part.Circle(Vector(6482, 6165, 0), Vector(0, 0, 1), 884), math.radians(0), math.radians(90)), False)
sketch4.addGeometry(Part.LineSegment(Vector(7366, 6165, 0), Vector(7366, 6160, 0)), False)
sketch4.addGeometry(Part.LineSegment(Vector(11709, 4737, 0), Vector(11709, 3848, 0)), False)
sketch4.addGeometry(Part.LineSegment(Vector(11709, 3848, 0), Vector(10820, 3848, 0)), False)
sketch4.addGeometry(Part.LineSegment(Vector(10820, 3848, 0), Vector(10820, 3853, 0)), False)
sketch4.addGeometry(Part.ArcOfCircle(Part.Circle(Vector(11704, 3853, 0), Vector(0, 0, 1), 884), math.radians(90), math.radians(180)), False)
sketch4.addGeometry(Part.LineSegment(Vector(11704, 4737, 0), Vector(11709, 4737, 0)), False)
sketch4.addGeometry(Part.LineSegment(Vector(5207, 7958, 0), Vector(5207, 7963, 0)), False)
sketch4.addGeometry(Part.LineSegment(Vector(5207, 7963, 0), Vector(6096, 7963, 0)), False)
sketch4.addGeometry(Part.LineSegment(Vector(6096, 7963, 0), Vector(6096, 7074, 0)), False)
sketch4.addGeometry(Part.LineSegment(Vector(6096, 7074, 0), Vector(6091, 7074, 0)), False)
sketch4.addGeometry(Part.ArcOfCircle(Part.Circle(Vector(6091, 7958, 0), Vector(0, 0, 1), 884), math.radians(-180), math.radians(-90)), False)
sketch4.addConstraint(Sketcher.Constraint("Tangent", 0, 1, 1, 1))
sketch4.addConstraint(Sketcher.Constraint("Tangent", 1, 2, 2, 2))
sketch4.addConstraint(Sketcher.Constraint("Tangent", 2, 1, 3, 1))
sketch4.addConstraint(Sketcher.Constraint("Coincident", 3, 2, 4, 1))
sketch4.addConstraint(Sketcher.Constraint("Coincident", 4, 2, 5, 1))
sketch4.addConstraint(Sketcher.Constraint("Tangent", 5, 2, 0, 2))
sketch4.addConstraint(Sketcher.Constraint("Coincident", 6, 2, 7, 1))
sketch4.addConstraint(Sketcher.Constraint("Coincident", 7, 2, 8, 1))
sketch4.addConstraint(Sketcher.Constraint("Coincident", 8, 2, 9, 1))
sketch4.addConstraint(Sketcher.Constraint("Coincident", 9, 2, 6, 1))
sketch4.addConstraint(Sketcher.Constraint("Coincident", 10, 2, 11, 1))
sketch4.addConstraint(Sketcher.Constraint("Coincident", 11, 2, 12, 1))
sketch4.addConstraint(Sketcher.Constraint("Coincident", 12, 2, 13, 1))
sketch4.addConstraint(Sketcher.Constraint("Coincident", 13, 2, 10, 1))
sketch4.addConstraint(Sketcher.Constraint("Coincident", 14, 2, 15, 1))
sketch4.addConstraint(Sketcher.Constraint("Coincident", 15, 2, 16, 1))
sketch4.addConstraint(Sketcher.Constraint("Tangent", 16, 2, 17, 2))
sketch4.addConstraint(Sketcher.Constraint("Tangent", 17, 1, 18, 1))
sketch4.addConstraint(Sketcher.Constraint("Coincident", 18, 2, 14, 1))
sketch4.addConstraint(Sketcher.Constraint("Coincident", 19, 2, 20, 1))
sketch4.addConstraint(Sketcher.Constraint("Coincident", 20, 2, 21, 1))
sketch4.addConstraint(Sketcher.Constraint("Tangent", 21, 2, 22, 2))
sketch4.addConstraint(Sketcher.Constraint("Tangent", 22, 1, 23, 1))
sketch4.addConstraint(Sketcher.Constraint("Coincident", 23, 2, 19, 1))
sketch4.addConstraint(Sketcher.Constraint("Coincident", 24, 2, 25, 1))
sketch4.addConstraint(Sketcher.Constraint("Coincident", 25, 2, 26, 1))
sketch4.addConstraint(Sketcher.Constraint("Tangent", 26, 2, 27, 2))
sketch4.addConstraint(Sketcher.Constraint("Tangent", 27, 1, 28, 1))
sketch4.addConstraint(Sketcher.Constraint("Coincident", 28, 2, 24, 1))
sketch4.addConstraint(Sketcher.Constraint("Coincident", 29, 2, 30, 1))
sketch4.addConstraint(Sketcher.Constraint("Coincident", 30, 2, 31, 1))
sketch4.addConstraint(Sketcher.Constraint("Tangent", 31, 2, 32, 2))
sketch4.addConstraint(Sketcher.Constraint("Tangent", 32, 1, 33, 1))
sketch4.addConstraint(Sketcher.Constraint("Coincident", 33, 2, 29, 1))
sketch4.addConstraint(Sketcher.Constraint("Coincident", 34, 2, 35, 1))
sketch4.addConstraint(Sketcher.Constraint("Coincident", 35, 2, 36, 1))
sketch4.addConstraint(Sketcher.Constraint("Tangent", 36, 2, 37, 2))
sketch4.addConstraint(Sketcher.Constraint("Tangent", 37, 1, 38, 1))
sketch4.addConstraint(Sketcher.Constraint("Coincident", 38, 2, 34, 1))
sketch4.addConstraint(Sketcher.Constraint("Coincident", 39, 2, 40, 1))
sketch4.addConstraint(Sketcher.Constraint("Coincident", 40, 2, 41, 1))
sketch4.addConstraint(Sketcher.Constraint("Tangent", 41, 2, 42, 2))
sketch4.addConstraint(Sketcher.Constraint("Tangent", 42, 1, 43, 1))
sketch4.addConstraint(Sketcher.Constraint("Coincident", 43, 2, 39, 1))
sketch4.addConstraint(Sketcher.Constraint("Coincident", 44, 2, 45, 1))
sketch4.addConstraint(Sketcher.Constraint("Coincident", 45, 2, 46, 1))
sketch4.addConstraint(Sketcher.Constraint("Coincident", 46, 2, 47, 1))
sketch4.addConstraint(Sketcher.Constraint("Tangent", 47, 2, 48, 2))
sketch4.addConstraint(Sketcher.Constraint("Tangent", 48, 1, 44, 1))
sketch4.addConstraint(Sketcher.Constraint("Horizontal", 1))
sketch4.addConstraint(Sketcher.Constraint("Vertical", 3))
sketch4.addConstraint(Sketcher.Constraint("Horizontal", 4))
sketch4.addConstraint(Sketcher.Constraint("Vertical", 5))
sketch4.addConstraint(Sketcher.Constraint("Vertical", 6))
sketch4.addConstraint(Sketcher.Constraint("Horizontal", 7))
sketch4.addConstraint(Sketcher.Constraint("Vertical", 8))
sketch4.addConstraint(Sketcher.Constraint("Horizontal", 9))
sketch4.addConstraint(Sketcher.Constraint("Vertical", 10))
sketch4.addConstraint(Sketcher.Constraint("Horizontal", 11))
sketch4.addConstraint(Sketcher.Constraint("Vertical", 12))
sketch4.addConstraint(Sketcher.Constraint("Horizontal", 13))
sketch4.addConstraint(Sketcher.Constraint("Vertical", 14))
sketch4.addConstraint(Sketcher.Constraint("Horizontal", 15))
sketch4.addConstraint(Sketcher.Constraint("Vertical", 16))
sketch4.addConstraint(Sketcher.Constraint("Horizontal", 18))
sketch4.addConstraint(Sketcher.Constraint("Vertical", 19))
sketch4.addConstraint(Sketcher.Constraint("Horizontal", 20))
sketch4.addConstraint(Sketcher.Constraint("Vertical", 21))
sketch4.addConstraint(Sketcher.Constraint("Horizontal", 23))
sketch4.addConstraint(Sketcher.Constraint("Horizontal", 24))
sketch4.addConstraint(Sketcher.Constraint("Vertical", 25))
sketch4.addConstraint(Sketcher.Constraint("Horizontal", 26))
sketch4.addConstraint(Sketcher.Constraint("Vertical", 28))
sketch4.addConstraint(Sketcher.Constraint("Vertical", 29))
sketch4.addConstraint(Sketcher.Constraint("Horizontal", 30))
sketch4.addConstraint(Sketcher.Constraint("Vertical", 31))
sketch4.addConstraint(Sketcher.Constraint("Horizontal", 33))
sketch4.addConstraint(Sketcher.Constraint("Horizontal", 34))
sketch4.addConstraint(Sketcher.Constraint("Vertical", 35))
sketch4.addConstraint(Sketcher.Constraint("Horizontal", 36))
sketch4.addConstraint(Sketcher.Constraint("Vertical", 38))
sketch4.addConstraint(Sketcher.Constraint("Vertical", 39))
sketch4.addConstraint(Sketcher.Constraint("Horizontal", 40))
sketch4.addConstraint(Sketcher.Constraint("Vertical", 41))
sketch4.addConstraint(Sketcher.Constraint("Horizontal", 43))
sketch4.addConstraint(Sketcher.Constraint("Vertical", 44))
sketch4.addConstraint(Sketcher.Constraint("Horizontal", 45))
sketch4.addConstraint(Sketcher.Constraint("Vertical", 46))
sketch4.addConstraint(Sketcher.Constraint("Horizontal", 47))
sketch4.addConstraint(Sketcher.Constraint("Equal", 0, 2))
sketch4.addConstraint(Sketcher.Constraint("Equal", 17, 22))
sketch4.addConstraint(Sketcher.Constraint("Equal", 22, 27))
sketch4.addConstraint(Sketcher.Constraint("Equal", 27, 32))
sketch4.addConstraint(Sketcher.Constraint("Equal", 32, 37))
sketch4.addConstraint(Sketcher.Constraint("Equal", 37, 42))
sketch4.addConstraint(Sketcher.Constraint("Equal", 42, 48))
sketch4.addConstraint(Sketcher.Constraint("Horizontal", 7, 2, 10, 2))
sketch4.addConstraint(Sketcher.Constraint("Horizontal", 20, 2, 39, 2))
sketch4.addConstraint(Sketcher.Constraint("Vertical", 27, 3, 32, 3))
sketch4.addConstraint(Sketcher.Constraint("Vertical", 22, 3, 37, 3))
sketch4.addConstraint(Sketcher.Constraint("Vertical", 25, 2, 29, 2))
sketch4.addConstraint(Sketcher.Constraint("Vertical", 23, 2, 34, 2))
sketch4.addConstraint(Sketcher.Constraint("Vertical", 16, 2, 44, 2))
sketch4.addConstraint(Sketcher.Constraint("Equal", 15, 20))
sketch4.addConstraint(Sketcher.Constraint("Equal", 20, 24))
sketch4.addConstraint(Sketcher.Constraint("Equal", 34, 40))
sketch4.addConstraint(Sketcher.Constraint("Equal", 40, 45))
sketch4.addConstraint(Sketcher.Constraint("Equal", 45, 19))
sketch4.addConstraint(Sketcher.Constraint("Equal", 19, 25))
sketch4.addConstraint(Sketcher.Constraint("Equal", 25, 29))
sketch4.addConstraint(Sketcher.Constraint("Equal", 29, 35))
sketch4.addConstraint(Sketcher.Constraint("Equal", 35, 39))
sketch4.addConstraint(Sketcher.Constraint("Equal", 41, 44))
sketch4.addConstraint(Sketcher.Constraint("Radius", 0, Q("12 in")))
sketch4.addConstraint(Sketcher.Constraint("Radius", 17, Q("34.8 in")))
sketch4.addConstraint(Sketcher.Constraint("DistanceX", 7, 1, 7, 2, Q("183 in")))
sketch4.addConstraint(Sketcher.Constraint("DistanceX", 11, 1, 11, 2, Q("139 in")))
sketch4.addConstraint(Sketcher.Constraint("DistanceX", 15, 1, 15, 2, Q("35 in")))
sketch4.addConstraint(Sketcher.Constraint("DistanceY", 3, 1, 3, 2, Q("22 in")))
sketch4.addConstraint(Sketcher.Constraint("DistanceY", 6, 1, 6, 2, Q("25 in")))
sketch4.addConstraint(Sketcher.Constraint("DistanceX", 1, 2, 1, 1, Q("75.6 in")))
sketch4.addConstraint(Sketcher.Constraint("DistanceY", 10, 1, 10, 2, Q("22.5 in")))
sketch4.addConstraint(Sketcher.Constraint("DistanceY", -1, 1, 0, 3, Q("212 in")))
sketch4.addConstraint(Sketcher.Constraint("DistanceX", -1, 1, 6, 2, Q("5 in")))
sketch4.addConstraint(Sketcher.Constraint("DistanceY", -1, 1, 6, 2, Q("311 in")))
sketch4.addConstraint(Sketcher.Constraint("DistanceX", -1, 1, 10, 2, Q("250 in")))
sketch4.addConstraint(Sketcher.Constraint("DistanceX", -1, 1, 14, 2, Q("170 in")))
sketch4.addConstraint(Sketcher.Constraint("DistanceX", -1, 1, 19, 2, Q("255 in")))
sketch4.addConstraint(Sketcher.Constraint("DistanceX", -1, 1, 39, 2, Q("461 in")))
sketch4.addConstraint(Sketcher.Constraint("DistanceX", 0, 3, 27, 3, Q("163 in")))
sketch4.addConstraint(Sketcher.Constraint("DistanceY", 42, 3, 37, 3, Q("91 in")))
sketch4.addConstraint(Sketcher.Constraint("DistanceY", 22, 3, 48, 3, Q("162 in")))
sketch4.addConstraint(Sketcher.Constraint("DistanceY", 35, 2, 13, 2, Q("11 in")))
sketch4.addConstraint(Sketcher.Constraint("DistanceX", -1, 1, 0, 3, Q("134.3 in")))
sketch4.addConstraint(Sketcher.Constraint("DistanceY", -1, 1, 14, 2, Q("2.5 in")))
sketch4.addConstraint(Sketcher.Constraint("DistanceY", 32, 3, 27, 3, Q("80.1 in")))
sketch4.addConstraint(Sketcher.Constraint("DistanceY", -1, 1, 27, 3, Q("237.05 in")))
sketch4.addConstraint(Sketcher.Constraint("DistanceY", 14, 1, 14, 2, Q("894.89637 mm")))
sketch4.setExpression("Constraints[113]", "Params.sketch4_radius")
sketch4.setExpression("Constraints[114]", "Params.sketch4_radius2")
sketch4.setExpression("Constraints[115]", "Params.sketch4_width")
sketch4.setExpression("Constraints[116]", "Params.sketch4_width2")
sketch4.setExpression("Constraints[117]", "Params.sketch4_width3")
pad3 = doc.addObject("PartDesign::Pad", "Pad002")
body.addObject(pad3)
pad3.Profile = sketch4
pad3.setExpression("Length", "Params.pad3_length")
pad3.Reversed = True

doc.recompute()
